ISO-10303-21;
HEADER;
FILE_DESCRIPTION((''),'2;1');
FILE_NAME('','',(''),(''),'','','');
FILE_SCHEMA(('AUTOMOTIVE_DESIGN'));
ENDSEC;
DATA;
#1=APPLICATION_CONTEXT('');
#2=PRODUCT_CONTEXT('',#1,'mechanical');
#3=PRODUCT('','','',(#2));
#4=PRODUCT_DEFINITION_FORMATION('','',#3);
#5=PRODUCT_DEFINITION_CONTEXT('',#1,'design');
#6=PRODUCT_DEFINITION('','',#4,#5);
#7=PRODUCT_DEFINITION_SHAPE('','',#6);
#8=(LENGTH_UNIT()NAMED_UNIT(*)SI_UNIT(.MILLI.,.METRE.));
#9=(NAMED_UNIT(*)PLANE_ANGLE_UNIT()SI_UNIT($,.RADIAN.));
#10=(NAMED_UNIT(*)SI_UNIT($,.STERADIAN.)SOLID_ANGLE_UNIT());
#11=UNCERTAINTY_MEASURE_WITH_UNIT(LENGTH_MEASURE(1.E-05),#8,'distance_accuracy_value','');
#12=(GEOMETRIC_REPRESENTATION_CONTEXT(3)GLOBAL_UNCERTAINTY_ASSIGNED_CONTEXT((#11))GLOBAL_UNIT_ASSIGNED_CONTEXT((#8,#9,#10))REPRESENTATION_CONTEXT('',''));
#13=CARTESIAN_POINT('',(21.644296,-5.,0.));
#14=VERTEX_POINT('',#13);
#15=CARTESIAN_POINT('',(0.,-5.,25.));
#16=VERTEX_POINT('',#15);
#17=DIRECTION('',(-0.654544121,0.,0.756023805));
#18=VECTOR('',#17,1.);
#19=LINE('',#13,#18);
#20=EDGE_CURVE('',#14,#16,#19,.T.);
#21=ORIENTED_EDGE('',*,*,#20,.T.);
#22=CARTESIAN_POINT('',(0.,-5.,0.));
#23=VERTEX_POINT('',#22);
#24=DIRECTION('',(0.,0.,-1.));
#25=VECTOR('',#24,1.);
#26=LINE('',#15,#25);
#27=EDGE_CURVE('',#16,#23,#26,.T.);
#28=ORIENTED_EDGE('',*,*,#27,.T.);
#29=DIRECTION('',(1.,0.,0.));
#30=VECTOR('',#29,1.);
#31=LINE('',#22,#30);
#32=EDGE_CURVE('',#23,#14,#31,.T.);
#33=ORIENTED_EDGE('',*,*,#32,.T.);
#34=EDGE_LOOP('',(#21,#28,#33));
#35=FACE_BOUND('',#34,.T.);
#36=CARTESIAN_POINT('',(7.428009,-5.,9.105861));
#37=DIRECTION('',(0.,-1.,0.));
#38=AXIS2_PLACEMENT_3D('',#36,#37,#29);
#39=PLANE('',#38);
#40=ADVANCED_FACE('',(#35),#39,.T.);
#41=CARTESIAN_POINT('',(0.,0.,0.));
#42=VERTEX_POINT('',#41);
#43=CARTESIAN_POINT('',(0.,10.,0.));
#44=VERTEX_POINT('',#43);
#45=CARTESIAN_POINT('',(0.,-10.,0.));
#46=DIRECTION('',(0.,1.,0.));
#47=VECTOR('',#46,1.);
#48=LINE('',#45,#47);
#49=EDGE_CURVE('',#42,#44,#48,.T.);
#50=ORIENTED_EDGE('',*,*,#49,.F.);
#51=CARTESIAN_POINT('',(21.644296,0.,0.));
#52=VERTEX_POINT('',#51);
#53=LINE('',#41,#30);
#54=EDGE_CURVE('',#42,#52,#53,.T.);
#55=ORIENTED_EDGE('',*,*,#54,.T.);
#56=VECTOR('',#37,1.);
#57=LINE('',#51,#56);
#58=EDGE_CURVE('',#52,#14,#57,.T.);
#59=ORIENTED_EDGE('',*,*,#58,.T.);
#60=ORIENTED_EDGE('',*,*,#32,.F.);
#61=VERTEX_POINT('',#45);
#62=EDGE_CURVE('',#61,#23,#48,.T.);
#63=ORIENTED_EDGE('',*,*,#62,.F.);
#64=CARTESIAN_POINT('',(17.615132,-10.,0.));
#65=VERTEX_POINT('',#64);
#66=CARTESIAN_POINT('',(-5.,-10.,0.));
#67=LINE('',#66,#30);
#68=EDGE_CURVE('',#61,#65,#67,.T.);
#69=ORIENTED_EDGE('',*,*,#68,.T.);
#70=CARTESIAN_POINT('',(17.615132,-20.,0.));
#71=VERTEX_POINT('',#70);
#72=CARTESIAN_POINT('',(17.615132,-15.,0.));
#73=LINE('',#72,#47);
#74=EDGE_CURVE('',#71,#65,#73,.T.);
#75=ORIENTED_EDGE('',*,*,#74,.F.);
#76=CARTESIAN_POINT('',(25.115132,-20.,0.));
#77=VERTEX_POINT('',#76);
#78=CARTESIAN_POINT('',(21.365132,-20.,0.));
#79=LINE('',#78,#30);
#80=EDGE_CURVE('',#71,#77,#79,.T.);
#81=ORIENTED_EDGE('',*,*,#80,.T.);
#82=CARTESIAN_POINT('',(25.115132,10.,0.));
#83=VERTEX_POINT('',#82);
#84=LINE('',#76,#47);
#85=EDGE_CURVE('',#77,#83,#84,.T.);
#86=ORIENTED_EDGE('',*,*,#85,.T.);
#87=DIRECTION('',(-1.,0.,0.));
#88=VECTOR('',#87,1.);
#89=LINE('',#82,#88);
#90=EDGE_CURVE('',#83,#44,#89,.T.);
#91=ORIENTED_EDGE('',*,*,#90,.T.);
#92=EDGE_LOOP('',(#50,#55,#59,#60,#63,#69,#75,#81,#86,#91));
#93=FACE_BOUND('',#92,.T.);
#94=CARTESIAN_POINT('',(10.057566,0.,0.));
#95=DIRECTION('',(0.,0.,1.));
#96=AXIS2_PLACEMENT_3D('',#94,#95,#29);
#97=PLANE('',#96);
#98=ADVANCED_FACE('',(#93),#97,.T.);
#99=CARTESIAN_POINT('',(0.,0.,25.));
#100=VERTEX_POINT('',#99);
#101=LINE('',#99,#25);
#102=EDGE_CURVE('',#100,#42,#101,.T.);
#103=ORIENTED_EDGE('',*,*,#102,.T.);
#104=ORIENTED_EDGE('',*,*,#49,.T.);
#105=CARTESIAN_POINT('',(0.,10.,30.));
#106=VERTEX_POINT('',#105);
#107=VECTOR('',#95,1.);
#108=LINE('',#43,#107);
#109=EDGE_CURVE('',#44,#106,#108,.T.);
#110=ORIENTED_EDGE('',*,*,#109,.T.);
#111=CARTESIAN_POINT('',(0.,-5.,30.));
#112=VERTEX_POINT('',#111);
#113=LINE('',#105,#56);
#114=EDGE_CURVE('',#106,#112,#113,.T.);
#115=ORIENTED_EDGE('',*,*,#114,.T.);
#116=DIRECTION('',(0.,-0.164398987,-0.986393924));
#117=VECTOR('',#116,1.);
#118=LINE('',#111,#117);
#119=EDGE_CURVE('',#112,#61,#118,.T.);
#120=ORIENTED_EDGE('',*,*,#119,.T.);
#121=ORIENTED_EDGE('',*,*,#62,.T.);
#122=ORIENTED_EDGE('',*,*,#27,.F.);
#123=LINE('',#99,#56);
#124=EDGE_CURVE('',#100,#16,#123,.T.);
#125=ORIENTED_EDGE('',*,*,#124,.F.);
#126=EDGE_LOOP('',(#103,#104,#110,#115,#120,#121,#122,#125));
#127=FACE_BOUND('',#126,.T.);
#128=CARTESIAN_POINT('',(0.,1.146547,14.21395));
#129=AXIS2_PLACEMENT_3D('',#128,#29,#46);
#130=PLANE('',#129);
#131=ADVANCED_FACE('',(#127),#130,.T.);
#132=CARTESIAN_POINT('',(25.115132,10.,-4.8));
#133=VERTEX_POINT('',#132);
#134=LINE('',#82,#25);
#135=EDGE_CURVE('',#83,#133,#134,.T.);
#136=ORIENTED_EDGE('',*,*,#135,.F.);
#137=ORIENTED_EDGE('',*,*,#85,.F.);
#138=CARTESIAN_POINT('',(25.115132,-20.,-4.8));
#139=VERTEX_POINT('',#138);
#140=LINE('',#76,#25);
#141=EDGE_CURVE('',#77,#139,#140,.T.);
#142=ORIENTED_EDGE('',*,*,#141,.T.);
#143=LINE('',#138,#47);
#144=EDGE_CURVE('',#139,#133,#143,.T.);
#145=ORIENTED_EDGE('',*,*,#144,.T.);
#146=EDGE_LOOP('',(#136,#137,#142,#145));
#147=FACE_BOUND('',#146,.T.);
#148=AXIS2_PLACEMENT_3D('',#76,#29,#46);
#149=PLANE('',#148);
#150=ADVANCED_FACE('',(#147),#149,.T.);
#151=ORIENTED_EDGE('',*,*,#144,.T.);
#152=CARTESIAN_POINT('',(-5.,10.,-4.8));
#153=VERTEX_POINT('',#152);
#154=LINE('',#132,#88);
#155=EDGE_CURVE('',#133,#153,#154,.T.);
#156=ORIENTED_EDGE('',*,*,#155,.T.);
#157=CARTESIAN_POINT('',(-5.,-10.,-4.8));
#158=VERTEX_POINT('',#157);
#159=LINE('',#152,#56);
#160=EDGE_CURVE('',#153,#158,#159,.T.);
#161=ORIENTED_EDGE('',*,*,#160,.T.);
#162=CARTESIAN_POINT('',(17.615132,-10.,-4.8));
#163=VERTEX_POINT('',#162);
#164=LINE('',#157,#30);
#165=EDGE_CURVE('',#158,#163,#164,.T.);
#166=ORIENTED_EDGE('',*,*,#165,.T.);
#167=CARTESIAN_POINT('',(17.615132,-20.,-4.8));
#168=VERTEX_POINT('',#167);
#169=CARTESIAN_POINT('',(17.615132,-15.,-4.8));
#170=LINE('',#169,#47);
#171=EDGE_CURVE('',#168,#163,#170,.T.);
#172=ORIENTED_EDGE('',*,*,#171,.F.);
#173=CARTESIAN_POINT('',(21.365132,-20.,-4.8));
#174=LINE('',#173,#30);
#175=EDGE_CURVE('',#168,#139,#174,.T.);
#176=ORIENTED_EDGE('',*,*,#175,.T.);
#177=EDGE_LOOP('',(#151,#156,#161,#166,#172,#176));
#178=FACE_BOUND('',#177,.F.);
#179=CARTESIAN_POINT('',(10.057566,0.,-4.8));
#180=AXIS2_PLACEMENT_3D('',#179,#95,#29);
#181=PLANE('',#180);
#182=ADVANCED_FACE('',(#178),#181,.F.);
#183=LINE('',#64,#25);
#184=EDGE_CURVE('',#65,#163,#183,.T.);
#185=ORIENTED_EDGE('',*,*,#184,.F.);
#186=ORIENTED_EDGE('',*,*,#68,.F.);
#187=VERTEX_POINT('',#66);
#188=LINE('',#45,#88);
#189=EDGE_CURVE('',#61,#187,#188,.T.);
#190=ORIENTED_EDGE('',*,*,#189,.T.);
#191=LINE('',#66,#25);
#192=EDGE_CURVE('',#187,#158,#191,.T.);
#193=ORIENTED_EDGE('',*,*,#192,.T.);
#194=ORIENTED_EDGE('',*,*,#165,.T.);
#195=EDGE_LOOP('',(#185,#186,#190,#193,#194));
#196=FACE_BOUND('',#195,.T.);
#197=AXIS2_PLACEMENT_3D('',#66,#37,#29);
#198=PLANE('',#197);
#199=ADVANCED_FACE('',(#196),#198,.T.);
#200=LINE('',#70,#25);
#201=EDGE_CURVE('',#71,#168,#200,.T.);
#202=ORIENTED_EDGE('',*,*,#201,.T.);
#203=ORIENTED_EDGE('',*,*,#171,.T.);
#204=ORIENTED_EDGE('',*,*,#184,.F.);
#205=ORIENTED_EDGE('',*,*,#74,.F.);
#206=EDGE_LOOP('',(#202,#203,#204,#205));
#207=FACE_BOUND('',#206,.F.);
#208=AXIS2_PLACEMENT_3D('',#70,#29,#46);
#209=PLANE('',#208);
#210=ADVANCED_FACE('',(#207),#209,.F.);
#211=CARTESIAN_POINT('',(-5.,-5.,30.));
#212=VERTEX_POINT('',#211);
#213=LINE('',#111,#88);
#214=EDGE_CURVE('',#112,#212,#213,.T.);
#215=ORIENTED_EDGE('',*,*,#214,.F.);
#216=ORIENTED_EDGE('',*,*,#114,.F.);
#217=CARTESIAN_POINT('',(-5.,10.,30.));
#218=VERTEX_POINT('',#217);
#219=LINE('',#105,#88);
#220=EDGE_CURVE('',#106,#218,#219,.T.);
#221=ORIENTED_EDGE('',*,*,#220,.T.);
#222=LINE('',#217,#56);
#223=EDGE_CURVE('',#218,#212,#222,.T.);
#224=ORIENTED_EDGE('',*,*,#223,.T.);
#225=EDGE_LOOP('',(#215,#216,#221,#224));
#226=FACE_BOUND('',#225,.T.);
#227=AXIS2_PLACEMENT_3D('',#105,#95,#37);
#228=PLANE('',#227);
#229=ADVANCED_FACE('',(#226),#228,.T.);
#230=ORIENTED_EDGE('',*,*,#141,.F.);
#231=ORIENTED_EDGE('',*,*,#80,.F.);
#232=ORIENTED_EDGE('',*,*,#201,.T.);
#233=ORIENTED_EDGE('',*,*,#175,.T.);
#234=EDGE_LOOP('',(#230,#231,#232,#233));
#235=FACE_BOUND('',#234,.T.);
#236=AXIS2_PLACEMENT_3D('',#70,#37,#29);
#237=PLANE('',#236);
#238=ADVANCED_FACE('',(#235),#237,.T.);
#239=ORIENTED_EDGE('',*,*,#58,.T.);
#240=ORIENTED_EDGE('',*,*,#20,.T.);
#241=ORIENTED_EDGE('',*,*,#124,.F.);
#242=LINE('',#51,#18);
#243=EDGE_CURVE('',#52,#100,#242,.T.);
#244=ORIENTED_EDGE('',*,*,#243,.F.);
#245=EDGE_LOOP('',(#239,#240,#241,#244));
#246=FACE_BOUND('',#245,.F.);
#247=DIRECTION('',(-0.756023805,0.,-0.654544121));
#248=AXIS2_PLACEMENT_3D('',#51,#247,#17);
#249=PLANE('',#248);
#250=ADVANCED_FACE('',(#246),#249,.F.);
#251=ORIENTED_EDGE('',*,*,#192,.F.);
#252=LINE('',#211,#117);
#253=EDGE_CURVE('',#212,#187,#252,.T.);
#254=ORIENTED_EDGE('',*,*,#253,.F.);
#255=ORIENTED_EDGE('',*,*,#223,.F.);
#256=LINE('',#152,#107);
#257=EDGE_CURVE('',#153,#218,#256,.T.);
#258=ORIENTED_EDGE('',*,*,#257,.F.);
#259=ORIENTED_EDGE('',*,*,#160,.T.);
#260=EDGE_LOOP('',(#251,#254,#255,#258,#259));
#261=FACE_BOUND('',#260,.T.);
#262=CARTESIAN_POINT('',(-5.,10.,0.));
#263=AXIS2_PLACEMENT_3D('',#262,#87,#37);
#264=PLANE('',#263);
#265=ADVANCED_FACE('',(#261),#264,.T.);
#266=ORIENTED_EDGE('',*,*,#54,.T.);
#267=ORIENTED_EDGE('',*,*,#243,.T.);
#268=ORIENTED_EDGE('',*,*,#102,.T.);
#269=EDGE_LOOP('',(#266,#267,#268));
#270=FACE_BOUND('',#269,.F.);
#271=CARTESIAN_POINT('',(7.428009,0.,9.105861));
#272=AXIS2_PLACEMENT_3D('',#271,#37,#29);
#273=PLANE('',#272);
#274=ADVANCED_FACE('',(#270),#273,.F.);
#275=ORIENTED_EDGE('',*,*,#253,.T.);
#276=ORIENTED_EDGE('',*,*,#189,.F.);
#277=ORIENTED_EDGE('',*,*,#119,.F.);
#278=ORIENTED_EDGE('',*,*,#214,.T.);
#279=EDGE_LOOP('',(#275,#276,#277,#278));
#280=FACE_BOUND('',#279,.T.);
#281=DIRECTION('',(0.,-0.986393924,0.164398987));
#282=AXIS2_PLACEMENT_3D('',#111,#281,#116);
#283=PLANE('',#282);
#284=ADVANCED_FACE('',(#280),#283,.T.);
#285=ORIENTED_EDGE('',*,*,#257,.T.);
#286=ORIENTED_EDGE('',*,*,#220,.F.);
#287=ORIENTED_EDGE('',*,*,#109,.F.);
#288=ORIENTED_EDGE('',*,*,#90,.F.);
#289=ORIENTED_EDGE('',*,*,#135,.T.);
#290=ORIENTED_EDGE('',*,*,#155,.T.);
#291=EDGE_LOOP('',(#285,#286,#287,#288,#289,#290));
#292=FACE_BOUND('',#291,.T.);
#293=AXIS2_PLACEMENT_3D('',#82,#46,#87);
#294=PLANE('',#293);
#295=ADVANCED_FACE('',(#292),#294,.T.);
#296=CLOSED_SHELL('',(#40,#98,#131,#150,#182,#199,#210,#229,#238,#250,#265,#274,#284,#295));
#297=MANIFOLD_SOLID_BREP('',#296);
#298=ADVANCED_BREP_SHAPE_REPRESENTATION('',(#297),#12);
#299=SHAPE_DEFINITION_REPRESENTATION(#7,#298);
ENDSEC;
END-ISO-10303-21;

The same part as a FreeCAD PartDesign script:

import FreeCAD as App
import Part
import Sketcher


def add_polygon(sketch, points):
    """Adds a closed chain of lines whose ends are joined by coincident constraints."""
    first, n = sketch.GeometryCount, len(points)
    for a, b in zip(points, points[1:] + points[:1]):
        sketch.addGeometry(Part.LineSegment(App.Vector(*a, 0), App.Vector(*b, 0)), False)
    for i in range(n):
        sketch.addConstraint(Sketcher.Constraint("Coincident", first + i, 2, first + (i + 1) % n, 1))

doc = App.newDocument("Part")
body = doc.addObject("PartDesign::Body", "Body")

# Sketch on XZ plane
sketch1 = body.newObject("Sketcher::SketchObject", "Sketch")
sketch1.AttachmentSupport = (doc.getObject("XZ_Plane"), [""])
sketch1.MapMode = "FlatFace"
add_polygon(sketch1, [(22, 0), (0, 25), (0, 0)])  # lines 0-2
sketch1.addConstraint(Sketcher.Constraint("Vertical", 1))
sketch1.addConstraint(Sketcher.Constraint("Horizontal", 2))
sketch1.addConstraint(Sketcher.Constraint("Coincident", 1, 2, -1, 1))
sketch1.addConstraint(Sketcher.Constraint("DistanceY", 1, 2, 1, 1, 25.0))
sketch1.addConstraint(Sketcher.Constraint("Distance", 0, 33.067742))
pad1 = body.newObject("PartDesign::Pad", "Pad")
pad1.Profile = sketch1
pad1.Length = 5

# Sketch on YZ plane
sketch2 = body.newObject("Sketcher::SketchObject", "Sketch001")
sketch2.AttachmentSupport = (doc.getObject("YZ_Plane"), [""])
sketch2.MapMode = "FlatFace"
add_polygon(sketch2, [(-10, 0), (10, 0), (10, 30), (-5, 30)])  # lines 0-3
sketch2.addConstraint(Sketcher.Constraint("Horizontal", 0))
sketch2.addConstraint(Sketcher.Constraint("Vertical", 1))
sketch2.addConstraint(Sketcher.Constraint("Horizontal", 2))
sketch2.addConstraint(Sketcher.Constraint("Symmetric", 0, 2, 3, 2, -1, 1))
sketch2.addConstraint(Sketcher.Constraint("DistanceX", 0, 1, 0, 2, 20.0))
sketch2.addConstraint(Sketcher.Constraint("DistanceX", 2, 2, 2, 1, 15.0))
sketch2.addConstraint(Sketcher.Constraint("DistanceY", 1, 1, 1, 2, 30.0))
pad2 = body.newObject("PartDesign::Pad", "Pad001")
pad2.Profile = sketch2
pad2.Length = 5
pad2.Reversed = True

# Sketch on XY plane
sketch3 = body.newObject("Sketcher::SketchObject", "Sketch002")
sketch3.AttachmentSupport = (doc.getObject("XY_Plane"), [""])
sketch3.MapMode = "FlatFace"
add_polygon(sketch3, [(25, 10), (-5, 10), (-5, -10), (18, -10), (18, -20), (25, -20)])  # lines 0-5
sketch3.addConstraint(Sketcher.Constraint("Horizontal", 0))
sketch3.addConstraint(Sketcher.Constraint("Vertical", 1))
sketch3.addConstraint(Sketcher.Constraint("Horizontal", 2))
sketch3.addConstraint(Sketcher.Constraint("Vertical", 3))
sketch3.addConstraint(Sketcher.Constraint("Horizontal", 4))
sketch3.addConstraint(Sketcher.Constraint("Vertical", 5))
sketch3.addConstraint(Sketcher.Constraint("DistanceY", 1, 2, 1, 1, 20.0))
sketch3.addConstraint(Sketcher.Constraint("DistanceY", 3, 2, 3, 1, 10.0))
sketch3.addConstraint(Sketcher.Constraint("DistanceX", 4, 1, 4, 2, 7.5))
sketch3.addConstraint(Sketcher.Constraint("DistanceX", 0, 2, -1, 1, 5.0))
sketch3.addConstraint(Sketcher.Constraint("DistanceY", -1, 1, 0, 2, 10.0))
sketch3.addConstraint(Sketcher.Constraint("DistanceX", 0, 2, 0, 1, 30.115132))
pad3 = body.newObject("PartDesign::Pad", "Pad002")
pad3.Profile = sketch3
pad3.Length = 4.8
pad3.Reversed = True

doc.recompute()
